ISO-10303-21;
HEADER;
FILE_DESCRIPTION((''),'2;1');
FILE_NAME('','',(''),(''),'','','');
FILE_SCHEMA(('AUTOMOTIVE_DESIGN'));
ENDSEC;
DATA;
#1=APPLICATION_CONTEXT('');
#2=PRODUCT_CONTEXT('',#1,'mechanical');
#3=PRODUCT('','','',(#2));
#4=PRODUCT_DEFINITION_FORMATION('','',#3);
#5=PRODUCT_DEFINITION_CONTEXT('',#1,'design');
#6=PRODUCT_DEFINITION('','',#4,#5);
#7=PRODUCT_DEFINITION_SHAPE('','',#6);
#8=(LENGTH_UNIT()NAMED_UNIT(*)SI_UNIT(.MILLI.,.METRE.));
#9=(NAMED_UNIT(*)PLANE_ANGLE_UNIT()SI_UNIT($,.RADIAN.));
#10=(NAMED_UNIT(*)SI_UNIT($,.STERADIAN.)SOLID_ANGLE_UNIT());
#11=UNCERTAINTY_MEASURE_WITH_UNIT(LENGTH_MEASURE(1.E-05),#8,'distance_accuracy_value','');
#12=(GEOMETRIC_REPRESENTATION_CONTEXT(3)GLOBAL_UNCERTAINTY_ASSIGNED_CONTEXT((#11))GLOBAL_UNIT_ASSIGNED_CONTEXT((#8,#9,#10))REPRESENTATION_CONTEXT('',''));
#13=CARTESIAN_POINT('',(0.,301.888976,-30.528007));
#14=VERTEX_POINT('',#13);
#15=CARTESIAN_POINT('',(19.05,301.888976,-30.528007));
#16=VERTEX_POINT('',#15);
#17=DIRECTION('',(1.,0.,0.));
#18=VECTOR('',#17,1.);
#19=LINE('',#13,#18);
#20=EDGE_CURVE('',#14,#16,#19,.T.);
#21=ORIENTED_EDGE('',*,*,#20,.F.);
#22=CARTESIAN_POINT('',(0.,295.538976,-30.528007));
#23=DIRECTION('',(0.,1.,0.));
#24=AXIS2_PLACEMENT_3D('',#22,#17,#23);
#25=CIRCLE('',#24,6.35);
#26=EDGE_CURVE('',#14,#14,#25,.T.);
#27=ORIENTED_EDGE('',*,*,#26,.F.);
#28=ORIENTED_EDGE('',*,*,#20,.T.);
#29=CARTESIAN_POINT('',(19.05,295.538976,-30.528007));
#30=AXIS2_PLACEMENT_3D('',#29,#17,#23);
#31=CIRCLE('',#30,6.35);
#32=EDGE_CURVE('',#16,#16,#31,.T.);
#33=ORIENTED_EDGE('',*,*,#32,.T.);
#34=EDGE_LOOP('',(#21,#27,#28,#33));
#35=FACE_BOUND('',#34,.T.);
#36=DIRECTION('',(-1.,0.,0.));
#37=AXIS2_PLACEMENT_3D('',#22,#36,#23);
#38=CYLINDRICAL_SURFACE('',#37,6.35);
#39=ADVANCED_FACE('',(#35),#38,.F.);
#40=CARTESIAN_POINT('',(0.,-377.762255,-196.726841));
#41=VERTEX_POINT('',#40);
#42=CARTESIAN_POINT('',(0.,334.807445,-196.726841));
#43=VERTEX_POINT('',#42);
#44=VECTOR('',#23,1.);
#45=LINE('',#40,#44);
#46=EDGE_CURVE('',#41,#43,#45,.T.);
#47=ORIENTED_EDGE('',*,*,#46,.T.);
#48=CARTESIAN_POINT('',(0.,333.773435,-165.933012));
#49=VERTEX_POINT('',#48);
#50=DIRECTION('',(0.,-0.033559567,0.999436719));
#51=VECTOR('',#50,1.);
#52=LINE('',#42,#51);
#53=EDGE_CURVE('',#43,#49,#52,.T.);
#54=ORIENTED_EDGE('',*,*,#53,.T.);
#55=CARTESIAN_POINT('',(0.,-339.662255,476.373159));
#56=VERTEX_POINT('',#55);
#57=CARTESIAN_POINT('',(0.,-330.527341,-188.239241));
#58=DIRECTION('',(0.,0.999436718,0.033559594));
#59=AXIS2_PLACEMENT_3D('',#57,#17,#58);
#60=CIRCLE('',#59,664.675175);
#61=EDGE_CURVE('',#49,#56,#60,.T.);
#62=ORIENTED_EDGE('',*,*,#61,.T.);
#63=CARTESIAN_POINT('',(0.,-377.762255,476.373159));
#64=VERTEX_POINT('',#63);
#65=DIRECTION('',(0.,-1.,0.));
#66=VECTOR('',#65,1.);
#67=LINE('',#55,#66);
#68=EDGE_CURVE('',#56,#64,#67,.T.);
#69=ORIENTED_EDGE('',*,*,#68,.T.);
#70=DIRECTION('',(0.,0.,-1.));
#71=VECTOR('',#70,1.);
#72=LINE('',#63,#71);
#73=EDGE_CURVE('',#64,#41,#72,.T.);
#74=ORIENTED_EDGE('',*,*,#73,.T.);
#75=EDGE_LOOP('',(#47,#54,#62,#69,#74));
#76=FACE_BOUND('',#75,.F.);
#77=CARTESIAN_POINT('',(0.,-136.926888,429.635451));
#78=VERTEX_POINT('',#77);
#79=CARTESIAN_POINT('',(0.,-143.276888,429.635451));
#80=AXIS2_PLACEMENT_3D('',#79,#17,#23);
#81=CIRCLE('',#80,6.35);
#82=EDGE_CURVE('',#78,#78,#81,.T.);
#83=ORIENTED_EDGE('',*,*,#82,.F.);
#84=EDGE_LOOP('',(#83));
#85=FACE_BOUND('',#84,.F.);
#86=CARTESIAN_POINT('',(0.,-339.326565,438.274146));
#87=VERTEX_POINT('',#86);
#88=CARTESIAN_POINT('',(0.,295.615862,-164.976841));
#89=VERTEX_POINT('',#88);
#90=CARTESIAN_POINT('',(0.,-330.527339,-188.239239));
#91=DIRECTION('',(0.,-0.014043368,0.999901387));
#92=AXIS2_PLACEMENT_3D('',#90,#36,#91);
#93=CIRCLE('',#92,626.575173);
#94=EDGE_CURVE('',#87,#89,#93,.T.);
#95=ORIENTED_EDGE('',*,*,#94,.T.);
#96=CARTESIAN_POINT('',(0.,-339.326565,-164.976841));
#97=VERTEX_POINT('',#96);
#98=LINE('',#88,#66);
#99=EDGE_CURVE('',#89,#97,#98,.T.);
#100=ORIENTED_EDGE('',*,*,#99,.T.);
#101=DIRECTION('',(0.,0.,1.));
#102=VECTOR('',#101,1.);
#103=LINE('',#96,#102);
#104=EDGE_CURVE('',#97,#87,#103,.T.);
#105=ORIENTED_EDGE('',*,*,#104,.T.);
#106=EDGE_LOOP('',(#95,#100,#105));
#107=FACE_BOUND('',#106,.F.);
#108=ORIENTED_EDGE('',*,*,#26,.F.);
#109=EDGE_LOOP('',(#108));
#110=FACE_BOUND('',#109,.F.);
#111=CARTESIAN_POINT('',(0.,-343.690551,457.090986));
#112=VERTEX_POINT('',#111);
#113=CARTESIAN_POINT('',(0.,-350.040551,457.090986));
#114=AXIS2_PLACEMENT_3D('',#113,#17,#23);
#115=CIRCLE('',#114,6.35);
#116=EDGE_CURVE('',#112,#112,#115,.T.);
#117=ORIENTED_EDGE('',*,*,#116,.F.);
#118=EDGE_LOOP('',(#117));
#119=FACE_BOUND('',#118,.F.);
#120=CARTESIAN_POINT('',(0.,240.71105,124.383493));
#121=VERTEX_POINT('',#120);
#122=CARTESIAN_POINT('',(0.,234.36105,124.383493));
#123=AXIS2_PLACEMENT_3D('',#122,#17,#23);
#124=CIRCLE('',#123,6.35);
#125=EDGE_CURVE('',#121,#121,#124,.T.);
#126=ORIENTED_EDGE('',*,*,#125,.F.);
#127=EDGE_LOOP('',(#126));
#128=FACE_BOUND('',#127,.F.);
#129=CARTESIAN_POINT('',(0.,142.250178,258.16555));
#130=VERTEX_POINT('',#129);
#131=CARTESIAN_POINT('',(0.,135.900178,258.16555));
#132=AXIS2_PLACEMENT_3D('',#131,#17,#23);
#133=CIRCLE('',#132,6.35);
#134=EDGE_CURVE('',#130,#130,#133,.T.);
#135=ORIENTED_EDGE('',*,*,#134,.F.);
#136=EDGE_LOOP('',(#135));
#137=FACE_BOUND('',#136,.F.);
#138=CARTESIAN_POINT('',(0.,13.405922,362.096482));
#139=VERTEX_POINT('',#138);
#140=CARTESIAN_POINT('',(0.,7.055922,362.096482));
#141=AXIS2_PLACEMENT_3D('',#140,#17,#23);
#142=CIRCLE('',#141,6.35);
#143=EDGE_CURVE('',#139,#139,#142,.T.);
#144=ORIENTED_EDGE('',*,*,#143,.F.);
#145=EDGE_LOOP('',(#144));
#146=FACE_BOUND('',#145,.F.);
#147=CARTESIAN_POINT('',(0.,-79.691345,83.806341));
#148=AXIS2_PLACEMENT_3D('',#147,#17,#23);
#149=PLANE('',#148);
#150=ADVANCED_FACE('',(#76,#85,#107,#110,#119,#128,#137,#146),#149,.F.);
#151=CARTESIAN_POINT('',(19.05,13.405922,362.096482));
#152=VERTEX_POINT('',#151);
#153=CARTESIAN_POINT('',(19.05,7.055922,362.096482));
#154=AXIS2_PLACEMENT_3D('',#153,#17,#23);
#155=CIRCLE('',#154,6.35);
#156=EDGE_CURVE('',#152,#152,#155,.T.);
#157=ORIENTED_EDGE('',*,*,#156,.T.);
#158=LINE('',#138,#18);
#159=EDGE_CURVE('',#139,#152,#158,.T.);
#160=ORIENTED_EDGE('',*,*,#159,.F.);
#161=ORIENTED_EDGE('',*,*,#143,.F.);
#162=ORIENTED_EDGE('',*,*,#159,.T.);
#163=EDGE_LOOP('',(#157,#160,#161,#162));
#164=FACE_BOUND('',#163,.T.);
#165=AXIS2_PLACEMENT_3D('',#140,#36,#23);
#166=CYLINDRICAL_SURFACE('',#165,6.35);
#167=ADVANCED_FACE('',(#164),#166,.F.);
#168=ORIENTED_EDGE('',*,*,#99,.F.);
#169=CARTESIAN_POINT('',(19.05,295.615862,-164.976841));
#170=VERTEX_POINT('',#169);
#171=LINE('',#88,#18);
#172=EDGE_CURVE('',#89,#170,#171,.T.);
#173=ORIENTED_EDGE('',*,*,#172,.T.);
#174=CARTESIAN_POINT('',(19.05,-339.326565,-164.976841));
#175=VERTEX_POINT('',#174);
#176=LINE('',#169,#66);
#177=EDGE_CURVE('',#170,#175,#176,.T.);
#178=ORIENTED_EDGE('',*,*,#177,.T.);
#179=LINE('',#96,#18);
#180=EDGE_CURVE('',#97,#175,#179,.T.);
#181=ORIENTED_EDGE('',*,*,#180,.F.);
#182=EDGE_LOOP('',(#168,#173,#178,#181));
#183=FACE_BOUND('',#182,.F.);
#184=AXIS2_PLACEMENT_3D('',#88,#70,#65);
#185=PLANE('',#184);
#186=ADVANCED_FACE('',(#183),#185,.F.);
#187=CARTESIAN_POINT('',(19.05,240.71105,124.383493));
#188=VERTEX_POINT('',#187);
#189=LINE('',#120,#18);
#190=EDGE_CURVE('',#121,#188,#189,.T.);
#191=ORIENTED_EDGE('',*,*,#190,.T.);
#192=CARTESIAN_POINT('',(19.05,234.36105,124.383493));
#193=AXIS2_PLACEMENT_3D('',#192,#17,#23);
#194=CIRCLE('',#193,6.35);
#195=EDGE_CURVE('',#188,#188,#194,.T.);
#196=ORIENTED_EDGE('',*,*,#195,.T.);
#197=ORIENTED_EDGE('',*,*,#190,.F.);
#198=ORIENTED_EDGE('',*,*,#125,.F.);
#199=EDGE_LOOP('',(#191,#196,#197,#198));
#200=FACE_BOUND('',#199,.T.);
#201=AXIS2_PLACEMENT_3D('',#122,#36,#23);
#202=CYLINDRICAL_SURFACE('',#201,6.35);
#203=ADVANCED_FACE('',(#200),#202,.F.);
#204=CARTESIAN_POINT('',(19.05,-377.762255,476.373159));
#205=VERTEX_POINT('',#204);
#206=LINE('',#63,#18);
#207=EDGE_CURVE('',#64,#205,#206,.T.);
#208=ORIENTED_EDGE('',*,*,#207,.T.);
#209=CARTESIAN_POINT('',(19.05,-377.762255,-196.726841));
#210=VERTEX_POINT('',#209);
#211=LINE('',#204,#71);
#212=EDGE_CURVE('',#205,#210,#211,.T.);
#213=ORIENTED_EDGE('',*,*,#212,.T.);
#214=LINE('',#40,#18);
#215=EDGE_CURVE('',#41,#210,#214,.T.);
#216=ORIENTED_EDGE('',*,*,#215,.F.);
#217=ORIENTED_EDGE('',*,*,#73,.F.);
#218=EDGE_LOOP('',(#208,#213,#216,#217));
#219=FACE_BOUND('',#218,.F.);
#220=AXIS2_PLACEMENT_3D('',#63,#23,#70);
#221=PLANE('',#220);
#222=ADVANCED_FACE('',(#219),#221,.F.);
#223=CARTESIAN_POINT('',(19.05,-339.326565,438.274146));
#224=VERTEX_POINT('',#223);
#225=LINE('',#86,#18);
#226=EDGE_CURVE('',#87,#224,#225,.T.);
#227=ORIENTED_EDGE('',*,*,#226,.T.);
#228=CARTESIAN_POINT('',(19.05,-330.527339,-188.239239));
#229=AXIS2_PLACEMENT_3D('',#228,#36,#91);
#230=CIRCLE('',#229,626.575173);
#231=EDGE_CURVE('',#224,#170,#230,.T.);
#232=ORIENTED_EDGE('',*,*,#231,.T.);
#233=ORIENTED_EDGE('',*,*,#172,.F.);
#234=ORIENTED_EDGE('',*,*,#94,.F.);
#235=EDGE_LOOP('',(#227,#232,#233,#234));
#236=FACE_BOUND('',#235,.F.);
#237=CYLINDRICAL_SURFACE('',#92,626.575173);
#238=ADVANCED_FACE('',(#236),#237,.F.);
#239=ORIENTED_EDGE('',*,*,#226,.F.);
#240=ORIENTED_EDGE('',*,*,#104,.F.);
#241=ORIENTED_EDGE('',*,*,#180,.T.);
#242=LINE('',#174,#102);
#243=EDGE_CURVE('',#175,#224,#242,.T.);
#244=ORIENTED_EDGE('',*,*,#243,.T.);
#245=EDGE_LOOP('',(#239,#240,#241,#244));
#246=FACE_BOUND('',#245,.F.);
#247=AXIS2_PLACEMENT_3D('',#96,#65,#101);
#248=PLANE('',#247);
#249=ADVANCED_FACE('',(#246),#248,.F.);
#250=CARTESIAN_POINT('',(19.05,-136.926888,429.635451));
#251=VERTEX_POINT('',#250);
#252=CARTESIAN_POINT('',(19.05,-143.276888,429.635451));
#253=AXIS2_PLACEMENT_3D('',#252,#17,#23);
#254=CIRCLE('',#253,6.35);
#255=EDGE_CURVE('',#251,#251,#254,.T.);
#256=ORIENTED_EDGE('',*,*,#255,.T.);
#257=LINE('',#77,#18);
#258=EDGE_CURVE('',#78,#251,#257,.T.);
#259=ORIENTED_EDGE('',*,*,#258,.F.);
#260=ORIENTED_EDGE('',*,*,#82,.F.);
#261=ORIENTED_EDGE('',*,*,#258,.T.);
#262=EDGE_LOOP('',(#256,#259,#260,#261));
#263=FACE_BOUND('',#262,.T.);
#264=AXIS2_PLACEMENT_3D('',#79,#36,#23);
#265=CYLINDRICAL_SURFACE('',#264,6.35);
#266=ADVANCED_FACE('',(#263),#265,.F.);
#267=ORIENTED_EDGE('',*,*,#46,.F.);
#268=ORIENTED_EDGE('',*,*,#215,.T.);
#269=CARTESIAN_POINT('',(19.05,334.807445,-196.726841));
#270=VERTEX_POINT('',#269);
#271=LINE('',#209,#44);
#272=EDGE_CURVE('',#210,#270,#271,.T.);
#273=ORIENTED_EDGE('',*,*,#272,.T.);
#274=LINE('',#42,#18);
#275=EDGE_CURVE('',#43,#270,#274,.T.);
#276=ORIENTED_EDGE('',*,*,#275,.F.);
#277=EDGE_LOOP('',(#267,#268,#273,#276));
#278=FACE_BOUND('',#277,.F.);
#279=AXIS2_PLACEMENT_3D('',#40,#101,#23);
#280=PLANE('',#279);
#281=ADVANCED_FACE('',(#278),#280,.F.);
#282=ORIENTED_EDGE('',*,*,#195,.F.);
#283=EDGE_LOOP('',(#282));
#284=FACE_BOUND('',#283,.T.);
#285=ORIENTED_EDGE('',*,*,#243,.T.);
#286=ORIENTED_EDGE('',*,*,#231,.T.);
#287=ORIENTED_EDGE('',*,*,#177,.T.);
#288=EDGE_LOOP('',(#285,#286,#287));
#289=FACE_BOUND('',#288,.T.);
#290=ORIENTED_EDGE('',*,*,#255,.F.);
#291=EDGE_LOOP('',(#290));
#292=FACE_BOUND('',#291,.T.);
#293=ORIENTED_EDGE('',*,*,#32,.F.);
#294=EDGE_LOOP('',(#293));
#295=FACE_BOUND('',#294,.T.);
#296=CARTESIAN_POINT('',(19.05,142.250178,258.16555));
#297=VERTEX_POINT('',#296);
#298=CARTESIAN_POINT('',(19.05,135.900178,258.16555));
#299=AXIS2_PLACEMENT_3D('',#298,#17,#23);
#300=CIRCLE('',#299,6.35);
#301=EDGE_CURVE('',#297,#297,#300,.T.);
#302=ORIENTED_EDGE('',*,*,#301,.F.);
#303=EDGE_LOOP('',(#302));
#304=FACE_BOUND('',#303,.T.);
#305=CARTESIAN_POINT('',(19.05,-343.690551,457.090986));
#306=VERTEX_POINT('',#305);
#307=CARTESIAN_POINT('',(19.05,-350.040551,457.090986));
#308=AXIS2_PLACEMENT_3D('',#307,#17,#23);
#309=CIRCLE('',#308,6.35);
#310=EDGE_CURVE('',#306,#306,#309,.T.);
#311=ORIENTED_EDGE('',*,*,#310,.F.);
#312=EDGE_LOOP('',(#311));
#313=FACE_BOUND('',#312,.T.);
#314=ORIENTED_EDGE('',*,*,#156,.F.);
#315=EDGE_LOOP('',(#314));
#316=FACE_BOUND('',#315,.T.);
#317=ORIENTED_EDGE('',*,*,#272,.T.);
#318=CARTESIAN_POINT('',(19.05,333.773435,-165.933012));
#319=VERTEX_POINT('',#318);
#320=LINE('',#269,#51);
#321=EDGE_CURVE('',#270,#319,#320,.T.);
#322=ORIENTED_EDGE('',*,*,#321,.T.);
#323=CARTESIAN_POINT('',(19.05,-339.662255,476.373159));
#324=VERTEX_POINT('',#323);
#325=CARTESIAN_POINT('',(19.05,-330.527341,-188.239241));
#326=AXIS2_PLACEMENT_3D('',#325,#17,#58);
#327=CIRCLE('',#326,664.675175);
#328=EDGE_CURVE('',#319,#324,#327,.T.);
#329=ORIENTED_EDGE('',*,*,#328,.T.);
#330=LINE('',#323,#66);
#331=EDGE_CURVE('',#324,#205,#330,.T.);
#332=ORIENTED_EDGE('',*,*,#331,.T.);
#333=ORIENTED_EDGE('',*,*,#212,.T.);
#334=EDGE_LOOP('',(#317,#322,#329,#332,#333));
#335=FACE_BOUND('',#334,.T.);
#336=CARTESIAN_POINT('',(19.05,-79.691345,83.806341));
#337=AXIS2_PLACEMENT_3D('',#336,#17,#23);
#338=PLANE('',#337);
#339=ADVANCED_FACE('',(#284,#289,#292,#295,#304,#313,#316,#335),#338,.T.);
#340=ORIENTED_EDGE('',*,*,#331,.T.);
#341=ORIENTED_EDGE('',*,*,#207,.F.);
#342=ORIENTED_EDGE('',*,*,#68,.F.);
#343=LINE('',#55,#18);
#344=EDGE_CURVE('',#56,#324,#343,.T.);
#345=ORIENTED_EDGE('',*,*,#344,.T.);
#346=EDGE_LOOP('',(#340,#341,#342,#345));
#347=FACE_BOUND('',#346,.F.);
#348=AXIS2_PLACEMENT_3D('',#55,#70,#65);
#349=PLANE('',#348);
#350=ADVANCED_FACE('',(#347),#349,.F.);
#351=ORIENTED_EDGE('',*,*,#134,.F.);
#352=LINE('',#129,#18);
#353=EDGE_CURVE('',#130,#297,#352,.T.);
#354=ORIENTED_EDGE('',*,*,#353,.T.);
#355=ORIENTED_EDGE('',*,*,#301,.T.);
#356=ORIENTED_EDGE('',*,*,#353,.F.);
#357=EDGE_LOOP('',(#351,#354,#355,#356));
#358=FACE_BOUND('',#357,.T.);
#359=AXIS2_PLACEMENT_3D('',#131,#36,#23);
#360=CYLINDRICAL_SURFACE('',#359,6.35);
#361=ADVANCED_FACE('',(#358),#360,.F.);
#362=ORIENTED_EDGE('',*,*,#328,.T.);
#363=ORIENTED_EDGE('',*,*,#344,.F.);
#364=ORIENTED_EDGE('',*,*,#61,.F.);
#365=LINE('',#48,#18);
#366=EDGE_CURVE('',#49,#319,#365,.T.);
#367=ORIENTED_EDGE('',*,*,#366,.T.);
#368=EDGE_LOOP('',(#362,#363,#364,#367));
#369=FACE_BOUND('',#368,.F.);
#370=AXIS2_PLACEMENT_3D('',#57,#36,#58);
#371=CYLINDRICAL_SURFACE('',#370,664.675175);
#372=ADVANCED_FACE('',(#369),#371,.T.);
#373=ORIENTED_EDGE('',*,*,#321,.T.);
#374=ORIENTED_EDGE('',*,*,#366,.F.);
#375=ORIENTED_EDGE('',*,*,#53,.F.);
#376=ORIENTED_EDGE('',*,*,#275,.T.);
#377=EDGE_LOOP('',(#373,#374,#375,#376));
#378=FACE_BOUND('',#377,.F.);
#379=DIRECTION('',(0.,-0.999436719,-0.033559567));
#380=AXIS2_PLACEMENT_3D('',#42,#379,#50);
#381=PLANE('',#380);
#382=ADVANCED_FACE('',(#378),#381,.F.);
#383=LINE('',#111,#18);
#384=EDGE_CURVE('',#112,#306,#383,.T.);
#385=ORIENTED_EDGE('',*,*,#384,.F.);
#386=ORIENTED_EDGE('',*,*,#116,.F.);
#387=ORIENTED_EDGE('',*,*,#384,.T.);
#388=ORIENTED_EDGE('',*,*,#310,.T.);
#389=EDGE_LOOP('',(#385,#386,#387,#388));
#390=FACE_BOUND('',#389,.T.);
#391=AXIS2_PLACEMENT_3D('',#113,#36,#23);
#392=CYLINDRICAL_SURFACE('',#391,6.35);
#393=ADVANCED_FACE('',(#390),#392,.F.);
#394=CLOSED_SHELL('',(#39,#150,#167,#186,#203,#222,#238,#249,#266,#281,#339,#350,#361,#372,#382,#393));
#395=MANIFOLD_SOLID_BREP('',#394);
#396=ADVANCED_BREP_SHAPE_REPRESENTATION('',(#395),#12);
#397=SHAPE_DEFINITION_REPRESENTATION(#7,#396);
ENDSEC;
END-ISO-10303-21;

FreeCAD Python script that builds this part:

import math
import FreeCAD as App
import Part
import Sketcher
Q = App.Units.Quantity

doc = App.newDocument("Part")
body = doc.addObject("PartDesign::Body", "Body")

# Sketch on YZ plane
sketch1 = body.newObject("Sketcher::SketchObject", "Sketch")
sketch1.AttachmentSupport = (doc.getObject("YZ_Plane"), [""])
sketch1.MapMode = "FlatFace"
sketch1.addGeometry([
    Part.LineSegment(App.Vector(335, -197, 0), App.Vector(334, -166, 0)),  # 0
    Part.ArcOfCircle(Part.Circle(App.Vector(-331, -188, 0), App.Vector(0, 0, 1), 665), math.radians(2), math.radians(91)),  # 1
    Part.LineSegment(App.Vector(-340, 476, 0), App.Vector(-378, 476, 0)),  # 2
    Part.LineSegment(App.Vector(-378, 476, 0), App.Vector(-378, -197, 0)),  # 3
    Part.LineSegment(App.Vector(-378, -197, 0), App.Vector(335, -197, 0)),  # 4
    Part.Circle(App.Vector(296, -31, 0), App.Vector(0, 0, 1), 6),  # 5
    Part.LineSegment(App.Vector(-339, -165, 0), App.Vector(-339, 438, 0)),  # 6
    Part.ArcOfCircle(Part.Circle(App.Vector(-331, -188, 0), App.Vector(0, 0, 1), 627), math.radians(2), math.radians(91)),  # 7
    Part.LineSegment(App.Vector(296, -165, 0), App.Vector(-339, -165, 0)),  # 8
    Part.Circle(App.Vector(234, 124, 0), App.Vector(0, 0, 1), 6),  # 9
    Part.Circle(App.Vector(-350, 457, 0), App.Vector(0, 0, 1), 6),  # 10
    Part.Circle(App.Vector(-143, 430, 0), App.Vector(0, 0, 1), 6),  # 11
    Part.Circle(App.Vector(136, 258, 0), App.Vector(0, 0, 1), 6),  # 12
    Part.Circle(App.Vector(7, 362, 0), App.Vector(0, 0, 1), 6),  # 13
], False)
sketch1.addConstraint([
    Sketcher.Constraint("Tangent", 0, 2, 1, 1),
    Sketcher.Constraint("Coincident", 1, 2, 2, 1),
    Sketcher.Constraint("Coincident", 2, 2, 3, 1),
    Sketcher.Constraint("Coincident", 3, 2, 4, 1),
    Sketcher.Constraint("Coincident", 4, 2, 0, 1),
    Sketcher.Constraint("Coincident", 6, 2, 7, 2),
    Sketcher.Constraint("Coincident", 7, 1, 8, 1),
    Sketcher.Constraint("Coincident", 8, 2, 6, 1),
    Sketcher.Constraint("Horizontal", 2),
    Sketcher.Constraint("Vertical", 3),
    Sketcher.Constraint("Horizontal", 4),
    Sketcher.Constraint("Vertical", 6),
    Sketcher.Constraint("Horizontal", 8),
    Sketcher.Constraint("Coincident", 7, 3, 1, 3),
    Sketcher.Constraint("Equal", 5, 9),
    Sketcher.Constraint("Equal", 9, 10),
    Sketcher.Constraint("Equal", 10, 11),
    Sketcher.Constraint("Equal", 11, 12),
    Sketcher.Constraint("Equal", 12, 13),
    Sketcher.Constraint("Diameter", 5, Q("0.5 in")),
    Sketcher.Constraint("DistanceX", 2, 2, 2, 1, Q("1.5 in")),
    Sketcher.Constraint("DistanceY", 3, 2, 3, 1, Q("26.5 in")),
    Sketcher.Constraint("DistanceY", 3, 2, 8, 2, Q("1.25 in")),
    Sketcher.Constraint("DistanceX", 4, 1, 4, 2, Q("712.5697 mm")),
    Sketcher.Constraint("Radius", 1, Q("664.675175 mm")),
    Sketcher.Constraint("Radius", 7, Q("626.575173 mm")),
    Sketcher.Constraint("DistanceY", 5, 3, 9, 3, Q("154.9115 mm")),
    Sketcher.Constraint("DistanceX", 10, 3, 9, 3, Q("584.401601 mm")),
    Sketcher.Constraint("DistanceY", 12, 3, 11, 3, Q("171.469901 mm")),
    Sketcher.Constraint("DistanceX", 8, 2, 8, 1, Q("634.942427 mm")),
    Sketcher.Constraint("DistanceX", 1, 3, -1, 1, Q("330.527341 mm")),
    Sketcher.Constraint("DistanceY", 1, 3, -1, 1, Q("188.239241 mm")),
    Sketcher.Constraint("DistanceX", -1, 1, 9, 3, Q("234.36105 mm")),
    Sketcher.Constraint("DistanceX", 11, 3, -1, 1, Q("143.276888 mm")),
    Sketcher.Constraint("DistanceY", -1, 1, 11, 3, Q("429.635451 mm")),
    Sketcher.Constraint("DistanceX", -1, 1, 12, 3, Q("135.900178 mm")),
    Sketcher.Constraint("DistanceX", -1, 1, 13, 3, Q("7.055922 mm")),
    Sketcher.Constraint("DistanceY", -1, 1, 13, 3, Q("362.096482 mm")),
    Sketcher.Constraint("DistanceY", 0, 2, -1, 1, Q("165.933012 mm")),
    Sketcher.Constraint("DistanceY", 7, 3, 5, 3, Q("157.711232 mm")),
    Sketcher.Constraint("DistanceX", 5, 3, 0, 2, Q("38.234459 mm")),
    Sketcher.Constraint("DistanceY", 6, 2, 10, 3, Q("18.81684 mm")),
])
pad1 = body.newObject("PartDesign::Pad", "Pad")
pad1.Profile = sketch1
pad1.Length = Q("0.75 in")

doc.recompute()
